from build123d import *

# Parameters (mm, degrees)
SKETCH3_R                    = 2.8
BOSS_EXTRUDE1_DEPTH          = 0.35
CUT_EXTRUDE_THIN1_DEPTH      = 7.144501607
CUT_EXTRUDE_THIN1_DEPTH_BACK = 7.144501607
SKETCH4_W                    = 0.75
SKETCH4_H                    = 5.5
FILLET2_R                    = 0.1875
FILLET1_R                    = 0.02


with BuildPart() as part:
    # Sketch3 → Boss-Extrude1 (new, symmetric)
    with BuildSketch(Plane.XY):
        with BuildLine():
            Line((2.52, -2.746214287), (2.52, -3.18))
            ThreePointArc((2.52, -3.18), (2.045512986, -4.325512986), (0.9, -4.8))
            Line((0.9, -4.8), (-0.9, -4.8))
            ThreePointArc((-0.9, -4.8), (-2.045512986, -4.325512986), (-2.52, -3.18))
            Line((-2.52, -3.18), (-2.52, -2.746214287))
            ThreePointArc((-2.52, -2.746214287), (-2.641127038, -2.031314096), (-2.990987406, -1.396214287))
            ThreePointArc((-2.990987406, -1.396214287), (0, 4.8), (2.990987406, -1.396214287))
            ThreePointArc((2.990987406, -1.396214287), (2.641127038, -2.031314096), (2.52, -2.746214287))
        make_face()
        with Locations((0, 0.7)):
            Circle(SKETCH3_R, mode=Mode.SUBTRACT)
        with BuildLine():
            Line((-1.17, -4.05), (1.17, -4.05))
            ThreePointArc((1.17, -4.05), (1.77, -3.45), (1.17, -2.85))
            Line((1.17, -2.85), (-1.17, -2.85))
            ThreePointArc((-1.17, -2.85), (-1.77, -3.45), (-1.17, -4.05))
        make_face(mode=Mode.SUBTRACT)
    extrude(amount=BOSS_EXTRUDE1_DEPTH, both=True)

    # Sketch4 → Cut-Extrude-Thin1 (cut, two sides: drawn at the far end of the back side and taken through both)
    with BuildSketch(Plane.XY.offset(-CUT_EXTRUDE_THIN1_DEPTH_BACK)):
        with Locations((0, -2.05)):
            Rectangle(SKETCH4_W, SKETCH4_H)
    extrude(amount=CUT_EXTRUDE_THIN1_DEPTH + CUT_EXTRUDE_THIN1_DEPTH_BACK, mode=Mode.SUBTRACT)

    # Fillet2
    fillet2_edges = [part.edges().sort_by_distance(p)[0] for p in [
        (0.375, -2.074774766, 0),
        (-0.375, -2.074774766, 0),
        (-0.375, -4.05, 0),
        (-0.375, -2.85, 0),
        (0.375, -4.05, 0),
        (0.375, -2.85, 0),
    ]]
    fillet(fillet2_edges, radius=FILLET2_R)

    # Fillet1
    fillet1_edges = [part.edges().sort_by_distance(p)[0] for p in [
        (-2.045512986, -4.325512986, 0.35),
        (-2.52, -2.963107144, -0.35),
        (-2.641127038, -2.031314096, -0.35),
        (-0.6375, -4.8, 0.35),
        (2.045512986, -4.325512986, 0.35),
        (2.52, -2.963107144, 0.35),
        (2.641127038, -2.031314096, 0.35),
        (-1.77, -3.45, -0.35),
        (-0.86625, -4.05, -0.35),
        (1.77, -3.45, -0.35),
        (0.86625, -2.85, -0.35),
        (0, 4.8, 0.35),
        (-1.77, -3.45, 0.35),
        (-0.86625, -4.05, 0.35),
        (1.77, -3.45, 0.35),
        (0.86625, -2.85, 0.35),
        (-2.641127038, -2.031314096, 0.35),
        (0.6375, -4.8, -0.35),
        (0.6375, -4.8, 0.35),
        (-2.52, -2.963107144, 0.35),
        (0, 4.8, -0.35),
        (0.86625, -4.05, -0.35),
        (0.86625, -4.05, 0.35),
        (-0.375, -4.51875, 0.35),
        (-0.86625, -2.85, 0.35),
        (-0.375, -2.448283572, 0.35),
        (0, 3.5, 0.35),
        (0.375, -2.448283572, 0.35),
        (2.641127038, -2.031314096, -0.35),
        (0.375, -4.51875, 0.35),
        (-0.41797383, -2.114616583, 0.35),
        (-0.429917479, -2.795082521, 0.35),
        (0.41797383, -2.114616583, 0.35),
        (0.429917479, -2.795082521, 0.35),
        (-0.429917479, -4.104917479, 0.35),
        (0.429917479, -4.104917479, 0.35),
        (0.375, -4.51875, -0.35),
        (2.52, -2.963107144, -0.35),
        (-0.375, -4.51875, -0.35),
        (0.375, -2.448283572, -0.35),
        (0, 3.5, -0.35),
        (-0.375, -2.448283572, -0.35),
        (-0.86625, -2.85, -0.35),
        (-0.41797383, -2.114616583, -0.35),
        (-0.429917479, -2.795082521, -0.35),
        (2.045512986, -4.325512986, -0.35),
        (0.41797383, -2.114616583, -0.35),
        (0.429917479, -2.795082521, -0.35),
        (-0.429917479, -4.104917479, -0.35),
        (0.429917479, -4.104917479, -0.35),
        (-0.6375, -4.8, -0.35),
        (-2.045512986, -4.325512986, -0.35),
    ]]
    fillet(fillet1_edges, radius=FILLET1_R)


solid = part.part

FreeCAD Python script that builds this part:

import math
import FreeCAD as App
import Part
import Sketcher

V = App.Vector


def edges_at(feature, points):
    """Names of the edges that pass closest to the given points."""
    edges = feature.Shape.Edges
    near = lambda p: min(range(len(edges)), key=lambda i: edges[i].distToShape(Part.Vertex(*p))[0])
    return sorted({f"Edge{near(p) + 1}" for p in points})


def add_polygon(sketch, points):
    """Adds a closed chain of lines whose ends are joined by coincident constraints."""
    first, n = sketch.GeometryCount, len(points)
    for a, b in zip(points, points[1:] + points[:1]):
        sketch.addGeometry(Part.LineSegment(App.Vector(*a, 0), App.Vector(*b, 0)), False)
    for i in range(n):
        sketch.addConstraint(Sketcher.Constraint("Coincident", first + i, 2, first + (i + 1) % n, 1))

doc = App.newDocument("Part")
params = doc.addObject("Spreadsheet::Sheet", "Params")
for row, (alias, value) in enumerate([
    ("sketch1_diameter", "5.6 mm"),
    ("sketch1_radius", "0.6 mm"),
    ("sketch1_radius2", "3.82 mm"),
    ("sketch1_radius3", "1.62 mm"),
    ("sketch1_width", "1.8 mm"),
    ("pad1_length", "0.7 mm"),
    ("sketch2_height", "5.5 mm"),
    ("sketch2_width", "0.75 mm"),
    ("fillet_radius", "0.1875 mm"),
    ("fillet2_radius", "0.02 mm"),
], start=1):
    params.set(f"A{row}", alias)
    params.set(f"B{row}", "=" + value)
    params.setAlias(f"B{row}", alias)

body = doc.addObject("PartDesign::Body", "Body")

sketch1 = doc.addObject("Sketcher::SketchObject", "Sketch")
body.addObject(sketch1)
sketch1.AttachmentSupport = (doc.XY_Plane, [""])
sketch1.MapMode = "FlatFace"
sketch1.addGeometry(Part.LineSegment(V(2.52, -3.18, 0), V(2.52, -2.75, 0)), False)
sketch1.addGeometry(Part.ArcOfCircle(Part.Circle(V(4.69, -2.75, 0), V(0, 0, 1), 2.17), math.radians(142), math.radians(180)), False)
sketch1.addGeometry(Part.ArcOfCircle(Part.Circle(V(0, 0.98, 0), V(0, 0, 1), 3.82), math.radians(-38), math.radians(218)), False)
sketch1.addGeometry(Part.ArcOfCircle(Part.Circle(V(-4.69, -2.75, 0), V(0, 0, 1), 2.17), math.radians(0), math.radians(38)), False)
sketch1.addGeometry(Part.LineSegment(V(-2.52, -2.75, 0), V(-2.52, -3.18, 0)), False)
sketch1.addGeometry(Part.ArcOfCircle(Part.Circle(V(-0.9, -3.18, 0), V(0, 0, 1), 1.62), math.radians(180), math.radians(270)), False)
sketch1.addGeometry(Part.LineSegment(V(-0.9, -4.8, 0), V(0.9, -4.8, 0)), False)
sketch1.addGeometry(Part.ArcOfCircle(Part.Circle(V(0.9, -3.18, 0), V(0, 0, 1), 1.62), math.radians(-90), math.radians(0)), False)
sketch1.addGeometry(Part.ArcOfCircle(Part.Circle(V(-1.17, -3.45, 0), V(0, 0, 1), 0.6), math.radians(90), math.radians(270)), False)
sketch1.addGeometry(Part.LineSegment(V(-1.17, -2.85, 0), V(1.17, -2.85, 0)), False)
sketch1.addGeometry(Part.ArcOfCircle(Part.Circle(V(1.17, -3.45, 0), V(0, 0, 1), 0.6), math.radians(-90), math.radians(90)), False)
sketch1.addGeometry(Part.LineSegment(V(1.17, -4.05, 0), V(-1.17, -4.05, 0)), False)
sketch1.addGeometry(Part.Circle(V(0, 0.7, 0), V(0, 0, 1), 2.8), False)
sketch1.addConstraint(Sketcher.Constraint("Tangent", 0, 2, 1, 2))
sketch1.addConstraint(Sketcher.Constraint("Tangent", 1, 1, 2, 1))
sketch1.addConstraint(Sketcher.Constraint("Tangent", 2, 2, 3, 2))
sketch1.addConstraint(Sketcher.Constraint("Tangent", 3, 1, 4, 1))
sketch1.addConstraint(Sketcher.Constraint("Tangent", 4, 2, 5, 1))
sketch1.addConstraint(Sketcher.Constraint("Tangent", 5, 2, 6, 1))
sketch1.addConstraint(Sketcher.Constraint("Tangent", 6, 2, 7, 1))
sketch1.addConstraint(Sketcher.Constraint("Tangent", 7, 2, 0, 1))
sketch1.addConstraint(Sketcher.Constraint("Tangent", 8, 1, 9, 1))
sketch1.addConstraint(Sketcher.Constraint("Tangent", 9, 2, 10, 2))
sketch1.addConstraint(Sketcher.Constraint("Tangent", 10, 1, 11, 1))
sketch1.addConstraint(Sketcher.Constraint("Tangent", 11, 2, 8, 2))
sketch1.addConstraint(Sketcher.Constraint("Vertical", 0))
sketch1.addConstraint(Sketcher.Constraint("Vertical", 4))
sketch1.addConstraint(Sketcher.Constraint("Horizontal", 6))
sketch1.addConstraint(Sketcher.Constraint("Horizontal", 9))
sketch1.addConstraint(Sketcher.Constraint("Horizontal", 11))
sketch1.addConstraint(Sketcher.Constraint("Equal", 1, 3))
sketch1.addConstraint(Sketcher.Constraint("Equal", 5, 7))
sketch1.addConstraint(Sketcher.Constraint("Symmetric", 1, 3, 3, 3, -2))
sketch1.addConstraint(Sketcher.Constraint("PointOnObject", 12, 3, -2))
sketch1.addConstraint(Sketcher.Constraint("Diameter", 12, 5.6))
sketch1.addConstraint(Sketcher.Constraint("Radius", 8, 0.6))
sketch1.addConstraint(Sketcher.Constraint("Radius", 2, 3.82))
sketch1.addConstraint(Sketcher.Constraint("Radius", 5, 1.62))
sketch1.addConstraint(Sketcher.Constraint("DistanceX", 6, 1, 6, 2, 1.8))
sketch1.addConstraint(Sketcher.Constraint("DistanceX", 9, 1, 9, 2, 2.34))
sketch1.addConstraint(Sketcher.Constraint("DistanceY", -1, 1, 12, 3, 0.7))
sketch1.addConstraint(Sketcher.Constraint("DistanceY", 5, 2, -1, 1, 4.8))
sketch1.addConstraint(Sketcher.Constraint("DistanceY", -1, 1, 2, 3, 0.98))
sketch1.addConstraint(Sketcher.Constraint("DistanceX", 8, 3, -1, 1, 1.17))
sketch1.addConstraint(Sketcher.Constraint("DistanceY", 8, 3, -1, 1, 3.45))
sketch1.addConstraint(Sketcher.Constraint("Radius", 1, 2.170259))
sketch1.setExpression("Constraints[21]", "Params.sketch1_diameter")
sketch1.setExpression("Constraints[22]", "Params.sketch1_radius")
sketch1.setExpression("Constraints[23]", "Params.sketch1_radius2")
sketch1.setExpression("Constraints[24]", "Params.sketch1_radius3")
sketch1.setExpression("Constraints[25]", "Params.sketch1_width")
pad1 = doc.addObject("PartDesign::Pad", "Pad")
body.addObject(pad1)
pad1.Profile = sketch1
pad1.setExpression("Length", "Params.pad1_length")
pad1.Midplane = True

sketch2 = doc.addObject("Sketcher::SketchObject", "Sketch001")
body.addObject(sketch2)
sketch2.AttachmentSupport = (doc.XY_Plane, [""])
sketch2.MapMode = "FlatFace"
add_polygon(sketch2, [(-0.4, 0.7), (-0.4, -4.8), (0.4, -4.8), (0.4, 0.7)])
sketch2.addConstraint(Sketcher.Constraint("Vertical", 0))
sketch2.addConstraint(Sketcher.Constraint("Horizontal", 1))
sketch2.addConstraint(Sketcher.Constraint("Vertical", 2))
sketch2.addConstraint(Sketcher.Constraint("Horizontal", 3))
sketch2.addConstraint(Sketcher.Constraint("DistanceY", 0, 2, 0, 1, 5.5))
sketch2.addConstraint(Sketcher.Constraint("DistanceX", 1, 1, 1, 2, 0.75))
sketch2.addConstraint(Sketcher.Constraint("DistanceY", 0, 2, -1, 1, 4.8))
sketch2.addConstraint(Sketcher.Constraint("DistanceX", 0, 2, -1, 1, 0.375))
sketch2.setExpression("Constraints[8]", "Params.sketch2_height")
sketch2.setExpression("Constraints[9]", "Params.sketch2_width")
pocket1 = doc.addObject("PartDesign::Pocket", "Pocket")
body.addObject(pocket1)
pocket1.Profile = sketch2
pocket1.Type = "ThroughAll"
pocket1.Midplane = True
doc.recompute()

fillet = doc.addObject("PartDesign::Fillet", "Fillet")
body.addObject(fillet)
fillet.Base = (pocket1, edges_at(pocket1, [
    (0.375, -2.075, 0),
    (-0.375, -2.075, 0),
    (-0.375, -4.05, 0),
    (-0.375, -2.85, 0),
    (0.375, -4.05, 0),
    (0.375, -2.85, 0),
]))
fillet.setExpression("Radius", "Params.fillet_radius")
doc.recompute()

fillet2 = doc.addObject("PartDesign::Fillet", "Fillet001")
body.addObject(fillet2)
fillet2.Base = (fillet, edges_at(fillet, [
    (-2.046, -4.326, 0.35),
    (-2.52, -2.963, -0.35),
    (-2.641, -2.031, -0.35),
    (-0.637, -4.8, 0.35),
    (2.046, -4.326, 0.35),
    (2.52, -2.963, 0.35),
    (2.641, -2.031, 0.35),
    (-1.77, -3.45, -0.35),
    (-0.866, -4.05, -0.35),
    (1.77, -3.45, -0.35),
    (0.866, -2.85, -0.35),
    (0, 4.8, 0.35),
    (-1.77, -3.45, 0.35),
    (-0.866, -4.05, 0.35),
    (1.77, -3.45, 0.35),
    (0.866, -2.85, 0.35),
    (-2.641, -2.031, 0.35),
    (0.637, -4.8, -0.35),
    (0.637, -4.8, 0.35),
    (-2.52, -2.963, 0.35),
    (0, 4.8, -0.35),
    (0.866, -4.05, -0.35),
    (0.866, -4.05, 0.35),
    (-0.375, -4.519, 0.35),
    (-0.866, -2.85, 0.35),
    (-0.375, -2.448, 0.35),
    (0, 3.5, 0.35),
    (0.375, -2.448, 0.35),
    (2.641, -2.031, -0.35),
    (0.375, -4.519, 0.35),
    (-0.418, -2.115, 0.35),
    (-0.43, -2.795, 0.35),
    (0.418, -2.115, 0.35),
    (0.43, -2.795, 0.35),
    (-0.43, -4.105, 0.35),
    (0.43, -4.105, 0.35),
    (0.375, -4.519, -0.35),
    (2.52, -2.963, -0.35),
    (-0.375, -4.519, -0.35),
    (0.375, -2.448, -0.35),
    (0, 3.5, -0.35),
    (-0.375, -2.448, -0.35),
    (-0.866, -2.85, -0.35),
    (-0.418, -2.115, -0.35),
    (-0.43, -2.795, -0.35),
    (2.046, -4.326, -0.35),
    (0.418, -2.115, -0.35),
    (0.43, -2.795, -0.35),
    (-0.43, -4.105, -0.35),
    (0.43, -4.105, -0.35),
    (-0.637, -4.8, -0.35),
    (-2.046, -4.326, -0.35),
]))
fillet2.setExpression("Radius", "Params.fillet2_radius")

doc.recompute()
